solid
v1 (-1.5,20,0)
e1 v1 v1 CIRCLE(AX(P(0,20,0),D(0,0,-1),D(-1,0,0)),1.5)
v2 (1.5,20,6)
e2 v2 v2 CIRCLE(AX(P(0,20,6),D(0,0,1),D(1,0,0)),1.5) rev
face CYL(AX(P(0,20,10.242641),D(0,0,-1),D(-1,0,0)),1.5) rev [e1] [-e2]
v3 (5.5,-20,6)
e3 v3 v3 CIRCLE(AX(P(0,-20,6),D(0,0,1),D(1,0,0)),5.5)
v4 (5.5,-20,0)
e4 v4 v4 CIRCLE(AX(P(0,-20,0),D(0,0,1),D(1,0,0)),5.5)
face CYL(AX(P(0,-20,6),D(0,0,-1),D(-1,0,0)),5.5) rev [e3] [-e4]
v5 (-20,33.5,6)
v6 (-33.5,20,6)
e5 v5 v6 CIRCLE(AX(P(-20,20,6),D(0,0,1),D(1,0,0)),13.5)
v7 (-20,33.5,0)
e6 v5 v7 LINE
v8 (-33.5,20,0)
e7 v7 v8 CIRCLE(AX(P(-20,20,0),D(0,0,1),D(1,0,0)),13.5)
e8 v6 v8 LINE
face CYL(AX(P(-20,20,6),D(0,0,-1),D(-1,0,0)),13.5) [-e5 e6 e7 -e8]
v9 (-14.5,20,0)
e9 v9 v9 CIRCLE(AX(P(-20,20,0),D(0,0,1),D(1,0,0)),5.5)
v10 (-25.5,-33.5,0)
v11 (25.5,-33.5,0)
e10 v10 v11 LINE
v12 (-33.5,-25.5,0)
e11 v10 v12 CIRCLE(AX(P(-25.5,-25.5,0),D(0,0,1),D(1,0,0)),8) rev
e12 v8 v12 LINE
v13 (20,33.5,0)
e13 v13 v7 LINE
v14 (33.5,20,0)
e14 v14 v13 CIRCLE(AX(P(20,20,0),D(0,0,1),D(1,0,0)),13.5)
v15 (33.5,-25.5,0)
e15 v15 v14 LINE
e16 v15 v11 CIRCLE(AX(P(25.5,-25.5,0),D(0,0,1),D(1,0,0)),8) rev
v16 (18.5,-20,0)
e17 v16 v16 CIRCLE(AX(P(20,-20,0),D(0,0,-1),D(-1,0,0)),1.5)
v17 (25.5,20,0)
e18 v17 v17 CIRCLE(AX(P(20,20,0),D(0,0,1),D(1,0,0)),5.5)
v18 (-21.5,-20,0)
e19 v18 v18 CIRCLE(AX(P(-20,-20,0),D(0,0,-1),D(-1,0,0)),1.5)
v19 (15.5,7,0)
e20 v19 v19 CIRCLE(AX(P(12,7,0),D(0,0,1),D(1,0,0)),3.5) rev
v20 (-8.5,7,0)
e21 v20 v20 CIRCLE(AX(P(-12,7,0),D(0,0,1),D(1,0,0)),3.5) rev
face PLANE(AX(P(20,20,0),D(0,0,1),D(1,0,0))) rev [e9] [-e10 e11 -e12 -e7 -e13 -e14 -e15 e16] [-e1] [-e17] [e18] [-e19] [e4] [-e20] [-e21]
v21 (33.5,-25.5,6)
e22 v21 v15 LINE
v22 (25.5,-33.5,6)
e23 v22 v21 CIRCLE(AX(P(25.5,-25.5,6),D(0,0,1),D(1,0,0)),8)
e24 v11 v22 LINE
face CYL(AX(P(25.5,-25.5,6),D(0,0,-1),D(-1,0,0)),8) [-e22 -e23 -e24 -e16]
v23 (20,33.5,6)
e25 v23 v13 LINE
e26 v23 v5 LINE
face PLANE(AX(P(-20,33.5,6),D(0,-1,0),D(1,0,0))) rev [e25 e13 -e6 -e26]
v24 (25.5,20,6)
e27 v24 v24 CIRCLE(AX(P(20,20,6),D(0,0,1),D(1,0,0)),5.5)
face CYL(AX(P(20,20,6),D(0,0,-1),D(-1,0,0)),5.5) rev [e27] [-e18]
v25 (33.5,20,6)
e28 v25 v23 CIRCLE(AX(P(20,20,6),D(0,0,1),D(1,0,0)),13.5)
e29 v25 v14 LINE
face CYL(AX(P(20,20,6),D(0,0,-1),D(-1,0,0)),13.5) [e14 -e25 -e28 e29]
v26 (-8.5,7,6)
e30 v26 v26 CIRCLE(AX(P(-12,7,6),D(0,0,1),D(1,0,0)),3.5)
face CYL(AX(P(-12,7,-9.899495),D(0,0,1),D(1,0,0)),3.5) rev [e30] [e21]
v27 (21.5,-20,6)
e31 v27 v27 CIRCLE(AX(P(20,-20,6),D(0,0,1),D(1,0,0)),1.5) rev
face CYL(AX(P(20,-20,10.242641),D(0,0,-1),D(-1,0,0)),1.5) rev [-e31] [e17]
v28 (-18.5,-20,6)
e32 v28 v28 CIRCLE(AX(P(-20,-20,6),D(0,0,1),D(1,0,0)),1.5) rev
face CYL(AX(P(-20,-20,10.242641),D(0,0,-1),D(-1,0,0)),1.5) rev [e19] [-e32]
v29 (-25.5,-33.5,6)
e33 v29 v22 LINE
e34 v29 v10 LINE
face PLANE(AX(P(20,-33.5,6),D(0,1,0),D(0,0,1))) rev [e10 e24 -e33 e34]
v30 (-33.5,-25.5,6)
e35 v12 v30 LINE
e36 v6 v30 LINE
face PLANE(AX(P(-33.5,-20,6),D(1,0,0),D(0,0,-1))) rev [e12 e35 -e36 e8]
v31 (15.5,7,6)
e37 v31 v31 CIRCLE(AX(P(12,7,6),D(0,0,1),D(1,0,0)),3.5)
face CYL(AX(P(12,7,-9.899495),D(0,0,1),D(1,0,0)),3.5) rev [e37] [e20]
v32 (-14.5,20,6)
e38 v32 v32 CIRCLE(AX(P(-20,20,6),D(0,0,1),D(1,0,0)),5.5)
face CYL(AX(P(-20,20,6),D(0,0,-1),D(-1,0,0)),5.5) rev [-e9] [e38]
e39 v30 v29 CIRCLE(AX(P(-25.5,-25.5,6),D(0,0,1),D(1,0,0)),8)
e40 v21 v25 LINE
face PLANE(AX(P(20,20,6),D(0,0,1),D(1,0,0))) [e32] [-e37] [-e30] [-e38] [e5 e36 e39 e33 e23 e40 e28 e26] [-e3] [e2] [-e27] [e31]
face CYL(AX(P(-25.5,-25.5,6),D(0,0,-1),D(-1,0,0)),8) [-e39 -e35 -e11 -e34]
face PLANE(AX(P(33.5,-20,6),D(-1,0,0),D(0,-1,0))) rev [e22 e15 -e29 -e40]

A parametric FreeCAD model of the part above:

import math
import FreeCAD as App
import Part
import Sketcher
from FreeCAD import Vector
Q = App.Units.Quantity


def edges_at(feature, points):
    """Names of the edges that pass closest to the given points."""
    edges = feature.Shape.Edges
    near = lambda p: min(range(len(edges)), key=lambda i: edges[i].distToShape(Part.Vertex(*p))[0])
    return sorted({f"Edge{near(p) + 1}" for p in points})


def add_polygon(sketch, points):
    """Adds a closed chain of lines whose ends are joined by coincident constraints."""
    first, n = sketch.GeometryCount, len(points)
    for a, b in zip(points, points[1:] + points[:1]):
        sketch.addGeometry(Part.LineSegment(App.Vector(*a, 0), App.Vector(*b, 0)), False)
    for i in range(n):
        sketch.addConstraint(Sketcher.Constraint("Coincident", first + i, 2, first + (i + 1) % n, 1))

doc = App.newDocument("Part")
body = doc.addObject("PartDesign::Body", "Body")

# Sketch on XY plane
sketch1 = body.newObject("Sketcher::SketchObject", "Sketch")
sketch1.AttachmentSupport = (doc.getObject("XY_Plane"), [""])
sketch1.MapMode = "FlatFace"
sketch1.addGeometry(Part.LineSegment(Vector(20, 33.5, 0), Vector(-20, 33.5, 0)), False)
sketch1.addGeometry(Part.ArcOfCircle(Part.Circle(Vector(-20, 20, 0), Vector(0, 0, 1), 13.5), math.radians(90), math.radians(180)), False)
sketch1.addGeometry(Part.LineSegment(Vector(-33.5, 20, 0), Vector(-33.5, -20, 0)), False)
sketch1.addGeometry(Part.ArcOfCircle(Part.Circle(Vector(-20, -20, 0), Vector(0, 0, 1), 13.5), math.radians(180), math.radians(270)), False)
sketch1.addGeometry(Part.LineSegment(Vector(-20, -33.5, 0), Vector(20, -33.5, 0)), False)
sketch1.addGeometry(Part.ArcOfCircle(Part.Circle(Vector(20, -20, 0), Vector(0, 0, 1), 13.5), math.radians(-90), math.radians(0)), False)
sketch1.addGeometry(Part.LineSegment(Vector(33.5, -20, 0), Vector(33.5, 20, 0)), False)
sketch1.addGeometry(Part.ArcOfCircle(Part.Circle(Vector(20, 20, 0), Vector(0, 0, 1), 13.5), math.radians(0), math.radians(90)), False)
sketch1.addGeometry(Part.Circle(Vector(0, -20, 0), Vector(0, 0, 1), 5.5), False)
sketch1.addGeometry(Part.Circle(Vector(20, 20, 0), Vector(0, 0, 1), 5.5), False)
sketch1.addGeometry(Part.Circle(Vector(-20, 20, 0), Vector(0, 0, 1), 5.5), False)
sketch1.addConstraint(Sketcher.Constraint("Tangent", 0, 2, 1, 1))
sketch1.addConstraint(Sketcher.Constraint("Tangent", 1, 2, 2, 1))
sketch1.addConstraint(Sketcher.Constraint("Tangent", 2, 2, 3, 1))
sketch1.addConstraint(Sketcher.Constraint("Tangent", 3, 2, 4, 1))
sketch1.addConstraint(Sketcher.Constraint("Tangent", 4, 2, 5, 1))
sketch1.addConstraint(Sketcher.Constraint("Tangent", 5, 2, 6, 1))
sketch1.addConstraint(Sketcher.Constraint("Tangent", 6, 2, 7, 1))
sketch1.addConstraint(Sketcher.Constraint("Tangent", 7, 2, 0, 1))
sketch1.addConstraint(Sketcher.Constraint("Horizontal", 0))
sketch1.addConstraint(Sketcher.Constraint("Vertical", 2))
sketch1.addConstraint(Sketcher.Constraint("Horizontal", 4))
sketch1.addConstraint(Sketcher.Constraint("Vertical", 6))
sketch1.addConstraint(Sketcher.Constraint("Coincident", 9, 3, 7, 3))
sketch1.addConstraint(Sketcher.Constraint("Coincident", 10, 3, 1, 3))
sketch1.addConstraint(Sketcher.Constraint("Equal", 1, 3))
sketch1.addConstraint(Sketcher.Constraint("Equal", 3, 5))
sketch1.addConstraint(Sketcher.Constraint("Equal", 5, 7))
sketch1.addConstraint(Sketcher.Constraint("Equal", 8, 9))
sketch1.addConstraint(Sketcher.Constraint("Equal", 9, 10))
sketch1.addConstraint(Sketcher.Constraint("Symmetric", 1, 3, 5, 3, -1, 1))
sketch1.addConstraint(Sketcher.Constraint("PointOnObject", 8, 3, -2))
sketch1.addConstraint(Sketcher.Constraint("Horizontal", 5, 3, 8, 3))
sketch1.addConstraint(Sketcher.Constraint("Equal", 4, 2))
sketch1.addConstraint(Sketcher.Constraint("Diameter", 8, Q("11 mm")))
sketch1.addConstraint(Sketcher.Constraint("Radius", 1, Q("13.5 mm")))
sketch1.addConstraint(Sketcher.Constraint("DistanceX", 0, 2, 0, 1, Q("40 mm")))
pad1 = body.newObject("PartDesign::Pad", "Pad")
pad1.Profile = sketch1
pad1.Length = 6

# Sketch on XY plane
sketch2 = body.newObject("Sketcher::SketchObject", "Sketch001")
sketch2.AttachmentSupport = (doc.getObject("XY_Plane"), [""])
sketch2.MapMode = "FlatFace"
add_polygon(sketch2, [(33.5, -20), (33.5, -33.5), (20, -33.5), (20, -20)])  # lines 0-3
add_polygon(sketch2, [(-20, -20), (-20, -33.5), (-33.5, -33.5), (-33.5, -20)])  # lines 4-7
sketch2.addConstraint(Sketcher.Constraint("Vertical", 0))
sketch2.addConstraint(Sketcher.Constraint("Horizontal", 1))
sketch2.addConstraint(Sketcher.Constraint("Vertical", 2))
sketch2.addConstraint(Sketcher.Constraint("Horizontal", 3))
sketch2.addConstraint(Sketcher.Constraint("Vertical", 4))
sketch2.addConstraint(Sketcher.Constraint("Horizontal", 5))
sketch2.addConstraint(Sketcher.Constraint("Vertical", 6))
sketch2.addConstraint(Sketcher.Constraint("Horizontal", 7))
sketch2.addConstraint(Sketcher.Constraint("Symmetric", 1, 2, 4, 2, -2))
sketch2.addConstraint(Sketcher.Constraint("Symmetric", 3, 2, 6, 2, -2))
sketch2.addConstraint(Sketcher.Constraint("Equal", 7, 0))
sketch2.addConstraint(Sketcher.Constraint("DistanceX", 1, 2, 1, 1, Q("13.5 mm")))
sketch2.addConstraint(Sketcher.Constraint("DistanceX", -1, 1, 1, 2, Q("20 mm")))
sketch2.addConstraint(Sketcher.Constraint("DistanceY", 2, 2, -1, 1, Q("20 mm")))
pad2 = body.newObject("PartDesign::Pad", "Pad001")
pad2.Profile = sketch2
pad2.Length = 6
doc.recompute()

fillet = body.newObject("PartDesign::Fillet", "Fillet")
fillet.Base = (pad2, edges_at(pad2, [(33.5, -33.5, 3), (-33.5, -33.5, 3)]))
fillet.Radius = 8

# Sketch on XY plane
sketch3 = body.newObject("Sketcher::SketchObject", "Sketch002")
sketch3.AttachmentSupport = (doc.getObject("XY_Plane"), [""])
sketch3.MapMode = "FlatFace"
sketch3.addGeometry(Part.Circle(Vector(0, 20, 0), Vector(0, 0, 1), 1.5), False)
sketch3.addGeometry(Part.Circle(Vector(-20, -20, 0), Vector(0, 0, 1), 1.5), False)
sketch3.addGeometry(Part.Circle(Vector(20, -20, 0), Vector(0, 0, 1), 1.5), False)
sketch3.addConstraint(Sketcher.Constraint("Equal", 0, 1))
sketch3.addConstraint(Sketcher.Constraint("Equal", 1, 2))
sketch3.addConstraint(Sketcher.Constraint("Symmetric", 1, 3, 2, 3, -2))
sketch3.addConstraint(Sketcher.Constraint("PointOnObject", 0, 3, -2))
sketch3.addConstraint(Sketcher.Constraint("Diameter", 0, Q("3 mm")))
sketch3.addConstraint(Sketcher.Constraint("DistanceY", -1, 1, 0, 3, Q("20 mm")))
sketch3.addConstraint(Sketcher.Constraint("DistanceX", 1, 3, -1, 1, Q("20 mm")))
sketch3.addConstraint(Sketcher.Constraint("DistanceY", 1, 3, -1, 1, Q("20 mm")))
pocket1 = body.newObject("PartDesign::Pocket", "Pocket")
pocket1.Profile = sketch3
pocket1.Length = 6
pocket1.Reversed = True

# Sketch on XY plane
sketch4 = body.newObject("Sketcher::SketchObject", "Sketch003")
sketch4.AttachmentSupport = (doc.getObject("XY_Plane"), [""])
sketch4.MapMode = "FlatFace"
sketch4.AttachmentOffset = App.Placement(Vector(0, 0, 6), App.Rotation())
sketch4.addGeometry(Part.Circle(Vector(-12, 7, 0), Vector(0, 0, 1), 3.5), False)
sketch4.addGeometry(Part.Circle(Vector(12, 7, 0), Vector(0, 0, 1), 3.5), False)
sketch4.addConstraint(Sketcher.Constraint("Equal", 0, 1))
sketch4.addConstraint(Sketcher.Constraint("Symmetric", 0, 3, 1, 3, -2))
sketch4.addConstraint(Sketcher.Constraint("Diameter", 0, Q("7 mm")))
sketch4.addConstraint(Sketcher.Constraint("DistanceX", 0, 3, -1, 1, Q("12 mm")))
sketch4.addConstraint(Sketcher.Constraint("DistanceY", -1, 1, 0, 3, Q("7 mm")))
pocket2 = body.newObject("PartDesign::Pocket", "Pocket001")
pocket2.Profile = sketch4
pocket2.Length = 6

doc.recompute()
